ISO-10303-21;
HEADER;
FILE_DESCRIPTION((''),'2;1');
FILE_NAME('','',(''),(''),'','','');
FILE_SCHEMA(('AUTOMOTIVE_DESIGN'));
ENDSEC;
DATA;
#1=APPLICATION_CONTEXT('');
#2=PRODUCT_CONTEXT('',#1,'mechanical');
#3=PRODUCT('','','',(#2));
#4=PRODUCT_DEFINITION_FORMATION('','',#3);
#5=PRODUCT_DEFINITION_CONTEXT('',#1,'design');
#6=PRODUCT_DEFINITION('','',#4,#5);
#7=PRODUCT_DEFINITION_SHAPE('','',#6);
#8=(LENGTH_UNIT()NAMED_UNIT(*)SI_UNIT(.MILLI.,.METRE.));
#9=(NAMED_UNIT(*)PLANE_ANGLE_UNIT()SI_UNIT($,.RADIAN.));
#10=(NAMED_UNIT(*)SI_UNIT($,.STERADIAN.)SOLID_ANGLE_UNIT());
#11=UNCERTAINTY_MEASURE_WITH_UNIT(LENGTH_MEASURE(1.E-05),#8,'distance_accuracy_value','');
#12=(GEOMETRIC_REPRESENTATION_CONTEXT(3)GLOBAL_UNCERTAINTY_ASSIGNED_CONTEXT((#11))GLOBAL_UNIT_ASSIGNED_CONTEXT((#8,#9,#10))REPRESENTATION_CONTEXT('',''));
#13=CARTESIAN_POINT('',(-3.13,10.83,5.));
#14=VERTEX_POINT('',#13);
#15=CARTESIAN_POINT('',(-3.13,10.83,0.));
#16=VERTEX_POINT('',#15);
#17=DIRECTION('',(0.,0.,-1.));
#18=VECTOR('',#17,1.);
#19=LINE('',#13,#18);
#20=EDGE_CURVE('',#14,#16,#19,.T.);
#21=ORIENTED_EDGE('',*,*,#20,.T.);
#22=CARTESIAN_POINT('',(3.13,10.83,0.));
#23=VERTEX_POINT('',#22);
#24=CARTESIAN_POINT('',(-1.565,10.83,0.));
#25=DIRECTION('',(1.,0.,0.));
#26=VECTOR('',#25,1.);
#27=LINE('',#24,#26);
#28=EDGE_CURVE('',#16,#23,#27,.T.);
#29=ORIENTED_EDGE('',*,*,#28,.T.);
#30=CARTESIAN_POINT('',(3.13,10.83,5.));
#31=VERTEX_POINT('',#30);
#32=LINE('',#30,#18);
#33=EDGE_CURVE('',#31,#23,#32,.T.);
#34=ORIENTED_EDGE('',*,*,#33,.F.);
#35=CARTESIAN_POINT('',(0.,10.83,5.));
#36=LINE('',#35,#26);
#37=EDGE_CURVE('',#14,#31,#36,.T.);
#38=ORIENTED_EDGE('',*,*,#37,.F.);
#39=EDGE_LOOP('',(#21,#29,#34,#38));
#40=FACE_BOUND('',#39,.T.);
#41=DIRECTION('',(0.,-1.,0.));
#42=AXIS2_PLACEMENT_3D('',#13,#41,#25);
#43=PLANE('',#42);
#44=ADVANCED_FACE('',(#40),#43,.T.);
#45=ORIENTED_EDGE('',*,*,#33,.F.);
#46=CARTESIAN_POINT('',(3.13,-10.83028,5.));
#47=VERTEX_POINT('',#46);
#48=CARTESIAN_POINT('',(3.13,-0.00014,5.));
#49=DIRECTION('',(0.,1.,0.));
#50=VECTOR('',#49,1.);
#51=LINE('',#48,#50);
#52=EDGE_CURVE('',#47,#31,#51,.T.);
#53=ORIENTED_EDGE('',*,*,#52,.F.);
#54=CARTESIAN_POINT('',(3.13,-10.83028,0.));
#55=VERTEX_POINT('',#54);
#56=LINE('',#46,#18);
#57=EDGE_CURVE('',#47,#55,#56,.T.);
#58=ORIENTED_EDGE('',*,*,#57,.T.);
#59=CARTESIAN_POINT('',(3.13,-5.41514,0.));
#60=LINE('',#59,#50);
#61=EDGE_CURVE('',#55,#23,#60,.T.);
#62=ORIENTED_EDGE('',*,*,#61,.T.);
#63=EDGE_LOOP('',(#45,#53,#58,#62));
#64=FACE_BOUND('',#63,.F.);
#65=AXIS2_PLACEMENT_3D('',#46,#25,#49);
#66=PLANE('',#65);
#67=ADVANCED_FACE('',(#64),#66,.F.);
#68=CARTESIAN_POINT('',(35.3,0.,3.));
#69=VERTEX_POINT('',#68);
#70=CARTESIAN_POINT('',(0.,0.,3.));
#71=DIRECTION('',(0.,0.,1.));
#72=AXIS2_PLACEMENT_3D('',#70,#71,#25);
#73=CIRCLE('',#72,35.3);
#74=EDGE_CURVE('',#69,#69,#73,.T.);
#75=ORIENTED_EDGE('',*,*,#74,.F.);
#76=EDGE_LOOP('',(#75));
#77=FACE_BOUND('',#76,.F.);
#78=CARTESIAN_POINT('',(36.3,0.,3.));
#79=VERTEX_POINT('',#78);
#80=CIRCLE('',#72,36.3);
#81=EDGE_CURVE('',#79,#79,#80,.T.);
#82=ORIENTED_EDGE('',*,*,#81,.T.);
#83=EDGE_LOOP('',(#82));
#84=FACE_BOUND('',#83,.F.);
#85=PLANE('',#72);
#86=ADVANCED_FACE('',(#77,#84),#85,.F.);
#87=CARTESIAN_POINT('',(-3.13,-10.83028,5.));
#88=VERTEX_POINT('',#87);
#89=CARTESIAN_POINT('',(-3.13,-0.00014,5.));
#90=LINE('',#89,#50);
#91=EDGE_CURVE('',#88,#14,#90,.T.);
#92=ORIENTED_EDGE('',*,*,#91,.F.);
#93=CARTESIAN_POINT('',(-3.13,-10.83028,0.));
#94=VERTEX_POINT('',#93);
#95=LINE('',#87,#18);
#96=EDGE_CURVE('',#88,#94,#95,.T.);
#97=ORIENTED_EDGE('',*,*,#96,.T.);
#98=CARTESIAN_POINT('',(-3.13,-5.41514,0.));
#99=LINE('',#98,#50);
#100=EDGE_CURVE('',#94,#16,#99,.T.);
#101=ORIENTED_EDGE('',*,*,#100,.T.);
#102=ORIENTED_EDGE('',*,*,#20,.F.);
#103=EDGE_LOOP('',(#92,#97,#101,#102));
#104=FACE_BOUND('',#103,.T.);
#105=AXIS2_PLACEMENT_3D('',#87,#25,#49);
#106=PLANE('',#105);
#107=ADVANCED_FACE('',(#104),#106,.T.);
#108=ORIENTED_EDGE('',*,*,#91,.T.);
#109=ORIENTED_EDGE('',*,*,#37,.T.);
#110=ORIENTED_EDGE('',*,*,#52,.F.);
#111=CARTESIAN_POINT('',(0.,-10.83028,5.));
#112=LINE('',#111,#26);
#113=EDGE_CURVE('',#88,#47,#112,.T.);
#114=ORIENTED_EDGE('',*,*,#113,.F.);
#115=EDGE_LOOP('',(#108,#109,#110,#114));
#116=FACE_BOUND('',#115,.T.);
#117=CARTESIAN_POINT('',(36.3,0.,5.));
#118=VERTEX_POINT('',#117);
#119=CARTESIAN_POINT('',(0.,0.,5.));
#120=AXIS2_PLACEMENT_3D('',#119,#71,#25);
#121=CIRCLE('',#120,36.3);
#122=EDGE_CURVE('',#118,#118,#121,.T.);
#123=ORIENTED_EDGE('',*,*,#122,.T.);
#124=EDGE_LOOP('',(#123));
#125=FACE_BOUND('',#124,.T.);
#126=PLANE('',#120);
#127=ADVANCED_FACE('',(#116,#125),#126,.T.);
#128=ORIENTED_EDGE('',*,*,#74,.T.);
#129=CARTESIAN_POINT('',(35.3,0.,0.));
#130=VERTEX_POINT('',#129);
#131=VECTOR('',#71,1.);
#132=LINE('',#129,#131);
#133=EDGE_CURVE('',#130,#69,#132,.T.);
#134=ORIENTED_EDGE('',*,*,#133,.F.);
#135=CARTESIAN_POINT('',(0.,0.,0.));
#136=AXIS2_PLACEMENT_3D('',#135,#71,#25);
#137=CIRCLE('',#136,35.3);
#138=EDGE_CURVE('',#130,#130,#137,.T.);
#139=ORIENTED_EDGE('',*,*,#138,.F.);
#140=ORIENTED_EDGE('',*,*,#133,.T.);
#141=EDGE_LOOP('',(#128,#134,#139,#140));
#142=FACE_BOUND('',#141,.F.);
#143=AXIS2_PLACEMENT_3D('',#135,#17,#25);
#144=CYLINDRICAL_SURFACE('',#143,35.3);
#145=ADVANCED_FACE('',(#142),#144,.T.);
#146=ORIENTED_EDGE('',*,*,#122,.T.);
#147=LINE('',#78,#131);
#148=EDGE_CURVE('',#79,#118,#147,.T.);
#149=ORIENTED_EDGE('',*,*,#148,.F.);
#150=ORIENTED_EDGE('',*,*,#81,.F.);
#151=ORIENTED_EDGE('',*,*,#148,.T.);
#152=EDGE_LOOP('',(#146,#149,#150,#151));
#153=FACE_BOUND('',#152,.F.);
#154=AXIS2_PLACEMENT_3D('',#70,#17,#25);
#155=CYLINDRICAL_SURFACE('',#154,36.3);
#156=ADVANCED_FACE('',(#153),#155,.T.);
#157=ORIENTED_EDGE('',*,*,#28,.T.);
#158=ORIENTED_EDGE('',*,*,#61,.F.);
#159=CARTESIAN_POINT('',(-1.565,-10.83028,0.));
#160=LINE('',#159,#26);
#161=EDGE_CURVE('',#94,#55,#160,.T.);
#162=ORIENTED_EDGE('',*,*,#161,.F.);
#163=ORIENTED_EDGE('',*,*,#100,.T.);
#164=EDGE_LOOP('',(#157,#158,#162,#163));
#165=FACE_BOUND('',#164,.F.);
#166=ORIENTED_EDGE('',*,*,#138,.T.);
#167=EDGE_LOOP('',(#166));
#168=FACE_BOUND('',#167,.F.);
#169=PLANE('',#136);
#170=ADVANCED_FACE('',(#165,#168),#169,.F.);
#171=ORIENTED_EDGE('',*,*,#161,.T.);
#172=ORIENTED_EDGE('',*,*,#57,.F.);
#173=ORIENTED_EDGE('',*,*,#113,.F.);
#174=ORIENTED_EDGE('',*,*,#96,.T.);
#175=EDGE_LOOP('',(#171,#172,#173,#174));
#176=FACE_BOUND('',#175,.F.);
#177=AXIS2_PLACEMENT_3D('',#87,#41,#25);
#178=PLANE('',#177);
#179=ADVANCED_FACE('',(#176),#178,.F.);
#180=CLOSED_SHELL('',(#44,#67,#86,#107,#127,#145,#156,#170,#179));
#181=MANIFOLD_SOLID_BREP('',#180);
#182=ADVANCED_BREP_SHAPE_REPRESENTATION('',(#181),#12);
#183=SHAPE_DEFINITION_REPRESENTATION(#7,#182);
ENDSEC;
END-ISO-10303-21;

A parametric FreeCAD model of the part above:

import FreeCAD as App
import Part
import Sketcher
from FreeCAD import Vector
Q = App.Units.Quantity


def add_polygon(sketch, points):
    """Adds a closed chain of lines whose ends are joined by coincident constraints."""
    first, n = sketch.GeometryCount, len(points)
    for a, b in zip(points, points[1:] + points[:1]):
        sketch.addGeometry(Part.LineSegment(App.Vector(*a, 0), App.Vector(*b, 0)), False)
    for i in range(n):
        sketch.addConstraint(Sketcher.Constraint("Coincident", first + i, 2, first + (i + 1) % n, 1))

doc = App.newDocument("Part")
body = doc.addObject("PartDesign::Body", "Body")

sketch1 = doc.addObject("Sketcher::SketchObject", "Sketch")
body.addObject(sketch1)
sketch1.AttachmentSupport = (doc.XY_Plane, [""])
sketch1.MapMode = "FlatFace"
sketch1.addGeometry(Part.Circle(Vector(0, 0, 0), Vector(0, 0, 1), 35), False)
sketch1.addConstraint(Sketcher.Constraint("Coincident", 0, 3, -1, 1))
sketch1.addConstraint(Sketcher.Constraint("Diameter", 0, Q("70.6 mm")))
pad1 = doc.addObject("PartDesign::Pad", "Pad")
body.addObject(pad1)
pad1.Profile = sketch1
pad1.Length = 3

sketch2 = doc.addObject("Sketcher::SketchObject", "Sketch001")
body.addObject(sketch2)
sketch2.AttachmentSupport = (doc.XY_Plane, [""])
sketch2.MapMode = "FlatFace"
sketch2.AttachmentOffset = App.Placement(Vector(0, 0, 3), App.Rotation())
sketch2.addGeometry(Part.Circle(Vector(0, 0, 0), Vector(0, 0, 1), 36), False)
sketch2.addConstraint(Sketcher.Constraint("Coincident", 0, 3, -1, 1))
sketch2.addConstraint(Sketcher.Constraint("Diameter", 0, Q("72.6 mm")))
pad2 = doc.addObject("PartDesign::Pad", "Pad001")
body.addObject(pad2)
pad2.Profile = sketch2
pad2.Length = 2

sketch3 = doc.addObject("Sketcher::SketchObject", "Sketch002")
body.addObject(sketch3)
sketch3.AttachmentSupport = (doc.XY_Plane, [""])
sketch3.MapMode = "FlatFace"
sketch3.AttachmentOffset = App.Placement(Vector(0, 0, 5), App.Rotation())
add_polygon(sketch3, [(-3, 11), (-3, -11), (3, -11), (3, 11)])
sketch3.addConstraint(Sketcher.Constraint("Vertical", 0))
sketch3.addConstraint(Sketcher.Constraint("Horizontal", 1))
sketch3.addConstraint(Sketcher.Constraint("Vertical", 2))
sketch3.addConstraint(Sketcher.Constraint("Horizontal", 3))
sketch3.addConstraint(Sketcher.Constraint("DistanceX", 1, 1, 1, 2, Q("6.26 mm")))
sketch3.addConstraint(Sketcher.Constraint("DistanceX", 0, 2, -1, 1, Q("3.13 mm")))
sketch3.addConstraint(Sketcher.Constraint("DistanceY", -1, 1, 2, 2, Q("10.83 mm")))
sketch3.addConstraint(Sketcher.Constraint("DistanceY", 0, 2, 0, 1, Q("21.66028 mm")))
pocket1 = doc.addObject("PartDesign::Pocket", "Pocket")
body.addObject(pocket1)
pocket1.Profile = sketch3
pocket1.Length = 25

doc.recompute()
